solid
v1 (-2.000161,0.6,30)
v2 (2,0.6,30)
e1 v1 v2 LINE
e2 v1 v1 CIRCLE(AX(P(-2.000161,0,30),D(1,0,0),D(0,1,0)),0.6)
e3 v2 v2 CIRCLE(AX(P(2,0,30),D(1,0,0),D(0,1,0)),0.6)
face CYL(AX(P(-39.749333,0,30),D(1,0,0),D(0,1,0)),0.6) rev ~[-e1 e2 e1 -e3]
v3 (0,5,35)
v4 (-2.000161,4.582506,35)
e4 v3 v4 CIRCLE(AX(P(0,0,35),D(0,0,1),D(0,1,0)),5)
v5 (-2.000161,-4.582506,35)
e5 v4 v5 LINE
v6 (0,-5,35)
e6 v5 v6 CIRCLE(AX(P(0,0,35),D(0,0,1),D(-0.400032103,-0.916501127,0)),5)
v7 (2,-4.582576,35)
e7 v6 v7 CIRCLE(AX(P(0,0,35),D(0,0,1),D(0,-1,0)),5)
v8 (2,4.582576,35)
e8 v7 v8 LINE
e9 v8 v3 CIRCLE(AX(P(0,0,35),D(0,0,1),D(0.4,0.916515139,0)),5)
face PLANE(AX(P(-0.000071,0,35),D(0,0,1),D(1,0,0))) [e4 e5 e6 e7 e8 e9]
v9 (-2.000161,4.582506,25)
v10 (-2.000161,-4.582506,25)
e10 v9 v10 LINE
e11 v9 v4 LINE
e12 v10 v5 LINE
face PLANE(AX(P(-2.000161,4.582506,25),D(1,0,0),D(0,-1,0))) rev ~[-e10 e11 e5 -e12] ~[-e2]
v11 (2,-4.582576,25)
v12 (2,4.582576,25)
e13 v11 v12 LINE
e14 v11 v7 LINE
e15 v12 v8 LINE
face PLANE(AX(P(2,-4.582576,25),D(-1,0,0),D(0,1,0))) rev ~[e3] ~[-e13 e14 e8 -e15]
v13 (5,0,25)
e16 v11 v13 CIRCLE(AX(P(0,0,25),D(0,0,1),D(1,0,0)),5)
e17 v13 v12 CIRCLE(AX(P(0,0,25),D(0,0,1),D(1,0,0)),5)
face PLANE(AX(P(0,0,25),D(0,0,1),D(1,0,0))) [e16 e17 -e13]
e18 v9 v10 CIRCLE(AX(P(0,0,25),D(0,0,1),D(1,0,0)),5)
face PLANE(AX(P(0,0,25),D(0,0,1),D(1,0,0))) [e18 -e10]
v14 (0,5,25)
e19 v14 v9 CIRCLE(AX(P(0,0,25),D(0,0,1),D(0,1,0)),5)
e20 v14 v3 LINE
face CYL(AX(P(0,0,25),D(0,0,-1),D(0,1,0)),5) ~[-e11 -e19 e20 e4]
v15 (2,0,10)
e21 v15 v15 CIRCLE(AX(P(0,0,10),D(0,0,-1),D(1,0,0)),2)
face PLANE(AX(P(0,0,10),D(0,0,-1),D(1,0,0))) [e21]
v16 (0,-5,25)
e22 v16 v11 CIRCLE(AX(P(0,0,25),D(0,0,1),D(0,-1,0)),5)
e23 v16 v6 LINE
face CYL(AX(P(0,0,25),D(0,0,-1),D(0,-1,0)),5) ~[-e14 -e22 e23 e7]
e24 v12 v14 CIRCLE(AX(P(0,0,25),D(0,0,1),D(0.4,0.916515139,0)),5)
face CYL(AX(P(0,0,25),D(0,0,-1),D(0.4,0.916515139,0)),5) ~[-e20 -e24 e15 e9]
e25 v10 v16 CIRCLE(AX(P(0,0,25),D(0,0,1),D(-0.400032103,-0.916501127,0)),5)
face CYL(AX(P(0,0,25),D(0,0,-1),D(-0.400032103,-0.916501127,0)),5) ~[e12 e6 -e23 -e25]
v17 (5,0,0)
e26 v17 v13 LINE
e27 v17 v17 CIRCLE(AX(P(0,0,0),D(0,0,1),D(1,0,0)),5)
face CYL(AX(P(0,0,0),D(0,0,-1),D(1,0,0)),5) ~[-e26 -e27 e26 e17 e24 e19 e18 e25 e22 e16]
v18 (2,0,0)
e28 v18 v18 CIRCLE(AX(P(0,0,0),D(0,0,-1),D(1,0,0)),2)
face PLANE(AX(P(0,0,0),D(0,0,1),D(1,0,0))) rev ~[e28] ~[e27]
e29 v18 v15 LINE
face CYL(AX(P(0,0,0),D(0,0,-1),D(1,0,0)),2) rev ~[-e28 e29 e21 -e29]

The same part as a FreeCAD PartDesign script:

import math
import FreeCAD as App
import Part
import Sketcher

V = App.Vector
Q = App.Units.Quantity

doc = App.newDocument("Part")
body = doc.addObject("PartDesign::Body", "Body")

# Sketch on XY plane
sketch1 = doc.addObject("Sketcher::SketchObject", "Sketch")
body.addObject(sketch1)
sketch1.AttachmentSupport = (doc.XY_Plane, [""])
sketch1.MapMode = "FlatFace"
sketch1.addGeometry(Part.Circle(V(0, 0, 0), V(0, 0, 1), 5), False)
sketch1.addConstraint([
    Sketcher.Constraint("Coincident", 0, 3, -1, 1),
    Sketcher.Constraint("Diameter", 0, Q("10 mm")),
])
pad1 = doc.addObject("PartDesign::Pad", "Pad")
body.addObject(pad1)
pad1.Profile = sketch1
pad1.Length = 25

# Sketch on XY plane
sketch2 = doc.addObject("Sketcher::SketchObject", "Sketch001")
body.addObject(sketch2)
sketch2.AttachmentSupport = (doc.XY_Plane, [""])
sketch2.MapMode = "FlatFace"
sketch2.addGeometry(Part.Circle(V(0, 0, 0), V(0, 0, 1), 2), False)
sketch2.addConstraint([
    Sketcher.Constraint("Coincident", 0, 3, -1, 1),
    Sketcher.Constraint("Diameter", 0, Q("4 mm")),
])
pocket1 = doc.addObject("PartDesign::Pocket", "Pocket")
body.addObject(pocket1)
pocket1.Profile = sketch2
pocket1.Length = 10
pocket1.Reversed = True

# Sketch on XY plane
sketch3 = doc.addObject("Sketcher::SketchObject", "Sketch002")
body.addObject(sketch3)
sketch3.AttachmentSupport = (doc.XY_Plane, [""])
sketch3.MapMode = "FlatFace"
sketch3.AttachmentOffset = App.Placement(V(0, 0, 25), App.Rotation())
sketch3.addGeometry([
    Part.ArcOfCircle(Part.Circle(V(0, 0, 0), V(0, 0, 1), 5), math.radians(66), math.radians(90)),  # 0
    Part.ArcOfCircle(Part.Circle(V(0, 0, 0), V(0, 0, 1), 5), math.radians(90), math.radians(114)),  # 1
    Part.LineSegment(V(-2, 4.6, 0), V(-2, -4.6, 0)),  # 2
    Part.ArcOfCircle(Part.Circle(V(0, 0, 0), V(0, 0, 1), 5), math.radians(-114), math.radians(-90)),  # 3
    Part.ArcOfCircle(Part.Circle(V(0, 0, 0), V(0, 0, 1), 5), math.radians(-90), math.radians(-66)),  # 4
    Part.LineSegment(V(2, -4.6, 0), V(2, 4.6, 0)),  # 5
], False)
sketch3.addConstraint([
    Sketcher.Constraint("Tangent", 0, 2, 1, 1),
    Sketcher.Constraint("Coincident", 1, 2, 2, 1),
    Sketcher.Constraint("Coincident", 2, 2, 3, 1),
    Sketcher.Constraint("Tangent", 3, 2, 4, 1),
    Sketcher.Constraint("Coincident", 4, 2, 5, 1),
    Sketcher.Constraint("Coincident", 5, 2, 0, 1),
    Sketcher.Constraint("Vertical", 2),
    Sketcher.Constraint("Vertical", 5),
    Sketcher.Constraint("Coincident", 0, 3, -1, 1),
    Sketcher.Constraint("Coincident", 3, 3, -1, 1),
    Sketcher.Constraint("Equal", 0, 1),
    Sketcher.Constraint("Equal", 1, 3),
    Sketcher.Constraint("Equal", 3, 4),
    Sketcher.Constraint("PointOnObject", 0, 2, -2),
    Sketcher.Constraint("PointOnObject", 3, 2, -2),
    Sketcher.Constraint("Radius", 0, Q("5 mm")),
    Sketcher.Constraint("DistanceX", -1, 1, 4, 2, Q("2 mm")),
    Sketcher.Constraint("DistanceY", 2, 2, 2, 1, Q("9.165011 mm")),
])
pad2 = doc.addObject("PartDesign::Pad", "Pad001")
body.addObject(pad2)
pad2.Profile = sketch3
pad2.Length = 10

# Sketch on YZ plane
sketch4 = doc.addObject("Sketcher::SketchObject", "Sketch003")
body.addObject(sketch4)
sketch4.AttachmentSupport = (doc.YZ_Plane, [""])
sketch4.MapMode = "FlatFace"
sketch4.AttachmentOffset = App.Placement(V(0, 0, -2.000161), App.Rotation())
sketch4.addGeometry(Part.Circle(V(0, 30, 0), V(0, 0, 1), 0.6), False)
sketch4.addConstraint([
    Sketcher.Constraint("PointOnObject", 0, 3, -2),
    Sketcher.Constraint("Diameter", 0, Q("1.2 mm")),
    Sketcher.Constraint("DistanceY", -1, 1, 0, 3, Q("30 mm")),
])
doc.recompute()
hole = doc.addObject("PartDesign::Hole", "Hole")
body.addObject(hole)
hole.Profile = sketch4
hole.ThreadType = "None"
hole.Diameter = 1.2
hole.DepthType = "ThroughAll"
hole.Reversed = True

doc.recompute()
